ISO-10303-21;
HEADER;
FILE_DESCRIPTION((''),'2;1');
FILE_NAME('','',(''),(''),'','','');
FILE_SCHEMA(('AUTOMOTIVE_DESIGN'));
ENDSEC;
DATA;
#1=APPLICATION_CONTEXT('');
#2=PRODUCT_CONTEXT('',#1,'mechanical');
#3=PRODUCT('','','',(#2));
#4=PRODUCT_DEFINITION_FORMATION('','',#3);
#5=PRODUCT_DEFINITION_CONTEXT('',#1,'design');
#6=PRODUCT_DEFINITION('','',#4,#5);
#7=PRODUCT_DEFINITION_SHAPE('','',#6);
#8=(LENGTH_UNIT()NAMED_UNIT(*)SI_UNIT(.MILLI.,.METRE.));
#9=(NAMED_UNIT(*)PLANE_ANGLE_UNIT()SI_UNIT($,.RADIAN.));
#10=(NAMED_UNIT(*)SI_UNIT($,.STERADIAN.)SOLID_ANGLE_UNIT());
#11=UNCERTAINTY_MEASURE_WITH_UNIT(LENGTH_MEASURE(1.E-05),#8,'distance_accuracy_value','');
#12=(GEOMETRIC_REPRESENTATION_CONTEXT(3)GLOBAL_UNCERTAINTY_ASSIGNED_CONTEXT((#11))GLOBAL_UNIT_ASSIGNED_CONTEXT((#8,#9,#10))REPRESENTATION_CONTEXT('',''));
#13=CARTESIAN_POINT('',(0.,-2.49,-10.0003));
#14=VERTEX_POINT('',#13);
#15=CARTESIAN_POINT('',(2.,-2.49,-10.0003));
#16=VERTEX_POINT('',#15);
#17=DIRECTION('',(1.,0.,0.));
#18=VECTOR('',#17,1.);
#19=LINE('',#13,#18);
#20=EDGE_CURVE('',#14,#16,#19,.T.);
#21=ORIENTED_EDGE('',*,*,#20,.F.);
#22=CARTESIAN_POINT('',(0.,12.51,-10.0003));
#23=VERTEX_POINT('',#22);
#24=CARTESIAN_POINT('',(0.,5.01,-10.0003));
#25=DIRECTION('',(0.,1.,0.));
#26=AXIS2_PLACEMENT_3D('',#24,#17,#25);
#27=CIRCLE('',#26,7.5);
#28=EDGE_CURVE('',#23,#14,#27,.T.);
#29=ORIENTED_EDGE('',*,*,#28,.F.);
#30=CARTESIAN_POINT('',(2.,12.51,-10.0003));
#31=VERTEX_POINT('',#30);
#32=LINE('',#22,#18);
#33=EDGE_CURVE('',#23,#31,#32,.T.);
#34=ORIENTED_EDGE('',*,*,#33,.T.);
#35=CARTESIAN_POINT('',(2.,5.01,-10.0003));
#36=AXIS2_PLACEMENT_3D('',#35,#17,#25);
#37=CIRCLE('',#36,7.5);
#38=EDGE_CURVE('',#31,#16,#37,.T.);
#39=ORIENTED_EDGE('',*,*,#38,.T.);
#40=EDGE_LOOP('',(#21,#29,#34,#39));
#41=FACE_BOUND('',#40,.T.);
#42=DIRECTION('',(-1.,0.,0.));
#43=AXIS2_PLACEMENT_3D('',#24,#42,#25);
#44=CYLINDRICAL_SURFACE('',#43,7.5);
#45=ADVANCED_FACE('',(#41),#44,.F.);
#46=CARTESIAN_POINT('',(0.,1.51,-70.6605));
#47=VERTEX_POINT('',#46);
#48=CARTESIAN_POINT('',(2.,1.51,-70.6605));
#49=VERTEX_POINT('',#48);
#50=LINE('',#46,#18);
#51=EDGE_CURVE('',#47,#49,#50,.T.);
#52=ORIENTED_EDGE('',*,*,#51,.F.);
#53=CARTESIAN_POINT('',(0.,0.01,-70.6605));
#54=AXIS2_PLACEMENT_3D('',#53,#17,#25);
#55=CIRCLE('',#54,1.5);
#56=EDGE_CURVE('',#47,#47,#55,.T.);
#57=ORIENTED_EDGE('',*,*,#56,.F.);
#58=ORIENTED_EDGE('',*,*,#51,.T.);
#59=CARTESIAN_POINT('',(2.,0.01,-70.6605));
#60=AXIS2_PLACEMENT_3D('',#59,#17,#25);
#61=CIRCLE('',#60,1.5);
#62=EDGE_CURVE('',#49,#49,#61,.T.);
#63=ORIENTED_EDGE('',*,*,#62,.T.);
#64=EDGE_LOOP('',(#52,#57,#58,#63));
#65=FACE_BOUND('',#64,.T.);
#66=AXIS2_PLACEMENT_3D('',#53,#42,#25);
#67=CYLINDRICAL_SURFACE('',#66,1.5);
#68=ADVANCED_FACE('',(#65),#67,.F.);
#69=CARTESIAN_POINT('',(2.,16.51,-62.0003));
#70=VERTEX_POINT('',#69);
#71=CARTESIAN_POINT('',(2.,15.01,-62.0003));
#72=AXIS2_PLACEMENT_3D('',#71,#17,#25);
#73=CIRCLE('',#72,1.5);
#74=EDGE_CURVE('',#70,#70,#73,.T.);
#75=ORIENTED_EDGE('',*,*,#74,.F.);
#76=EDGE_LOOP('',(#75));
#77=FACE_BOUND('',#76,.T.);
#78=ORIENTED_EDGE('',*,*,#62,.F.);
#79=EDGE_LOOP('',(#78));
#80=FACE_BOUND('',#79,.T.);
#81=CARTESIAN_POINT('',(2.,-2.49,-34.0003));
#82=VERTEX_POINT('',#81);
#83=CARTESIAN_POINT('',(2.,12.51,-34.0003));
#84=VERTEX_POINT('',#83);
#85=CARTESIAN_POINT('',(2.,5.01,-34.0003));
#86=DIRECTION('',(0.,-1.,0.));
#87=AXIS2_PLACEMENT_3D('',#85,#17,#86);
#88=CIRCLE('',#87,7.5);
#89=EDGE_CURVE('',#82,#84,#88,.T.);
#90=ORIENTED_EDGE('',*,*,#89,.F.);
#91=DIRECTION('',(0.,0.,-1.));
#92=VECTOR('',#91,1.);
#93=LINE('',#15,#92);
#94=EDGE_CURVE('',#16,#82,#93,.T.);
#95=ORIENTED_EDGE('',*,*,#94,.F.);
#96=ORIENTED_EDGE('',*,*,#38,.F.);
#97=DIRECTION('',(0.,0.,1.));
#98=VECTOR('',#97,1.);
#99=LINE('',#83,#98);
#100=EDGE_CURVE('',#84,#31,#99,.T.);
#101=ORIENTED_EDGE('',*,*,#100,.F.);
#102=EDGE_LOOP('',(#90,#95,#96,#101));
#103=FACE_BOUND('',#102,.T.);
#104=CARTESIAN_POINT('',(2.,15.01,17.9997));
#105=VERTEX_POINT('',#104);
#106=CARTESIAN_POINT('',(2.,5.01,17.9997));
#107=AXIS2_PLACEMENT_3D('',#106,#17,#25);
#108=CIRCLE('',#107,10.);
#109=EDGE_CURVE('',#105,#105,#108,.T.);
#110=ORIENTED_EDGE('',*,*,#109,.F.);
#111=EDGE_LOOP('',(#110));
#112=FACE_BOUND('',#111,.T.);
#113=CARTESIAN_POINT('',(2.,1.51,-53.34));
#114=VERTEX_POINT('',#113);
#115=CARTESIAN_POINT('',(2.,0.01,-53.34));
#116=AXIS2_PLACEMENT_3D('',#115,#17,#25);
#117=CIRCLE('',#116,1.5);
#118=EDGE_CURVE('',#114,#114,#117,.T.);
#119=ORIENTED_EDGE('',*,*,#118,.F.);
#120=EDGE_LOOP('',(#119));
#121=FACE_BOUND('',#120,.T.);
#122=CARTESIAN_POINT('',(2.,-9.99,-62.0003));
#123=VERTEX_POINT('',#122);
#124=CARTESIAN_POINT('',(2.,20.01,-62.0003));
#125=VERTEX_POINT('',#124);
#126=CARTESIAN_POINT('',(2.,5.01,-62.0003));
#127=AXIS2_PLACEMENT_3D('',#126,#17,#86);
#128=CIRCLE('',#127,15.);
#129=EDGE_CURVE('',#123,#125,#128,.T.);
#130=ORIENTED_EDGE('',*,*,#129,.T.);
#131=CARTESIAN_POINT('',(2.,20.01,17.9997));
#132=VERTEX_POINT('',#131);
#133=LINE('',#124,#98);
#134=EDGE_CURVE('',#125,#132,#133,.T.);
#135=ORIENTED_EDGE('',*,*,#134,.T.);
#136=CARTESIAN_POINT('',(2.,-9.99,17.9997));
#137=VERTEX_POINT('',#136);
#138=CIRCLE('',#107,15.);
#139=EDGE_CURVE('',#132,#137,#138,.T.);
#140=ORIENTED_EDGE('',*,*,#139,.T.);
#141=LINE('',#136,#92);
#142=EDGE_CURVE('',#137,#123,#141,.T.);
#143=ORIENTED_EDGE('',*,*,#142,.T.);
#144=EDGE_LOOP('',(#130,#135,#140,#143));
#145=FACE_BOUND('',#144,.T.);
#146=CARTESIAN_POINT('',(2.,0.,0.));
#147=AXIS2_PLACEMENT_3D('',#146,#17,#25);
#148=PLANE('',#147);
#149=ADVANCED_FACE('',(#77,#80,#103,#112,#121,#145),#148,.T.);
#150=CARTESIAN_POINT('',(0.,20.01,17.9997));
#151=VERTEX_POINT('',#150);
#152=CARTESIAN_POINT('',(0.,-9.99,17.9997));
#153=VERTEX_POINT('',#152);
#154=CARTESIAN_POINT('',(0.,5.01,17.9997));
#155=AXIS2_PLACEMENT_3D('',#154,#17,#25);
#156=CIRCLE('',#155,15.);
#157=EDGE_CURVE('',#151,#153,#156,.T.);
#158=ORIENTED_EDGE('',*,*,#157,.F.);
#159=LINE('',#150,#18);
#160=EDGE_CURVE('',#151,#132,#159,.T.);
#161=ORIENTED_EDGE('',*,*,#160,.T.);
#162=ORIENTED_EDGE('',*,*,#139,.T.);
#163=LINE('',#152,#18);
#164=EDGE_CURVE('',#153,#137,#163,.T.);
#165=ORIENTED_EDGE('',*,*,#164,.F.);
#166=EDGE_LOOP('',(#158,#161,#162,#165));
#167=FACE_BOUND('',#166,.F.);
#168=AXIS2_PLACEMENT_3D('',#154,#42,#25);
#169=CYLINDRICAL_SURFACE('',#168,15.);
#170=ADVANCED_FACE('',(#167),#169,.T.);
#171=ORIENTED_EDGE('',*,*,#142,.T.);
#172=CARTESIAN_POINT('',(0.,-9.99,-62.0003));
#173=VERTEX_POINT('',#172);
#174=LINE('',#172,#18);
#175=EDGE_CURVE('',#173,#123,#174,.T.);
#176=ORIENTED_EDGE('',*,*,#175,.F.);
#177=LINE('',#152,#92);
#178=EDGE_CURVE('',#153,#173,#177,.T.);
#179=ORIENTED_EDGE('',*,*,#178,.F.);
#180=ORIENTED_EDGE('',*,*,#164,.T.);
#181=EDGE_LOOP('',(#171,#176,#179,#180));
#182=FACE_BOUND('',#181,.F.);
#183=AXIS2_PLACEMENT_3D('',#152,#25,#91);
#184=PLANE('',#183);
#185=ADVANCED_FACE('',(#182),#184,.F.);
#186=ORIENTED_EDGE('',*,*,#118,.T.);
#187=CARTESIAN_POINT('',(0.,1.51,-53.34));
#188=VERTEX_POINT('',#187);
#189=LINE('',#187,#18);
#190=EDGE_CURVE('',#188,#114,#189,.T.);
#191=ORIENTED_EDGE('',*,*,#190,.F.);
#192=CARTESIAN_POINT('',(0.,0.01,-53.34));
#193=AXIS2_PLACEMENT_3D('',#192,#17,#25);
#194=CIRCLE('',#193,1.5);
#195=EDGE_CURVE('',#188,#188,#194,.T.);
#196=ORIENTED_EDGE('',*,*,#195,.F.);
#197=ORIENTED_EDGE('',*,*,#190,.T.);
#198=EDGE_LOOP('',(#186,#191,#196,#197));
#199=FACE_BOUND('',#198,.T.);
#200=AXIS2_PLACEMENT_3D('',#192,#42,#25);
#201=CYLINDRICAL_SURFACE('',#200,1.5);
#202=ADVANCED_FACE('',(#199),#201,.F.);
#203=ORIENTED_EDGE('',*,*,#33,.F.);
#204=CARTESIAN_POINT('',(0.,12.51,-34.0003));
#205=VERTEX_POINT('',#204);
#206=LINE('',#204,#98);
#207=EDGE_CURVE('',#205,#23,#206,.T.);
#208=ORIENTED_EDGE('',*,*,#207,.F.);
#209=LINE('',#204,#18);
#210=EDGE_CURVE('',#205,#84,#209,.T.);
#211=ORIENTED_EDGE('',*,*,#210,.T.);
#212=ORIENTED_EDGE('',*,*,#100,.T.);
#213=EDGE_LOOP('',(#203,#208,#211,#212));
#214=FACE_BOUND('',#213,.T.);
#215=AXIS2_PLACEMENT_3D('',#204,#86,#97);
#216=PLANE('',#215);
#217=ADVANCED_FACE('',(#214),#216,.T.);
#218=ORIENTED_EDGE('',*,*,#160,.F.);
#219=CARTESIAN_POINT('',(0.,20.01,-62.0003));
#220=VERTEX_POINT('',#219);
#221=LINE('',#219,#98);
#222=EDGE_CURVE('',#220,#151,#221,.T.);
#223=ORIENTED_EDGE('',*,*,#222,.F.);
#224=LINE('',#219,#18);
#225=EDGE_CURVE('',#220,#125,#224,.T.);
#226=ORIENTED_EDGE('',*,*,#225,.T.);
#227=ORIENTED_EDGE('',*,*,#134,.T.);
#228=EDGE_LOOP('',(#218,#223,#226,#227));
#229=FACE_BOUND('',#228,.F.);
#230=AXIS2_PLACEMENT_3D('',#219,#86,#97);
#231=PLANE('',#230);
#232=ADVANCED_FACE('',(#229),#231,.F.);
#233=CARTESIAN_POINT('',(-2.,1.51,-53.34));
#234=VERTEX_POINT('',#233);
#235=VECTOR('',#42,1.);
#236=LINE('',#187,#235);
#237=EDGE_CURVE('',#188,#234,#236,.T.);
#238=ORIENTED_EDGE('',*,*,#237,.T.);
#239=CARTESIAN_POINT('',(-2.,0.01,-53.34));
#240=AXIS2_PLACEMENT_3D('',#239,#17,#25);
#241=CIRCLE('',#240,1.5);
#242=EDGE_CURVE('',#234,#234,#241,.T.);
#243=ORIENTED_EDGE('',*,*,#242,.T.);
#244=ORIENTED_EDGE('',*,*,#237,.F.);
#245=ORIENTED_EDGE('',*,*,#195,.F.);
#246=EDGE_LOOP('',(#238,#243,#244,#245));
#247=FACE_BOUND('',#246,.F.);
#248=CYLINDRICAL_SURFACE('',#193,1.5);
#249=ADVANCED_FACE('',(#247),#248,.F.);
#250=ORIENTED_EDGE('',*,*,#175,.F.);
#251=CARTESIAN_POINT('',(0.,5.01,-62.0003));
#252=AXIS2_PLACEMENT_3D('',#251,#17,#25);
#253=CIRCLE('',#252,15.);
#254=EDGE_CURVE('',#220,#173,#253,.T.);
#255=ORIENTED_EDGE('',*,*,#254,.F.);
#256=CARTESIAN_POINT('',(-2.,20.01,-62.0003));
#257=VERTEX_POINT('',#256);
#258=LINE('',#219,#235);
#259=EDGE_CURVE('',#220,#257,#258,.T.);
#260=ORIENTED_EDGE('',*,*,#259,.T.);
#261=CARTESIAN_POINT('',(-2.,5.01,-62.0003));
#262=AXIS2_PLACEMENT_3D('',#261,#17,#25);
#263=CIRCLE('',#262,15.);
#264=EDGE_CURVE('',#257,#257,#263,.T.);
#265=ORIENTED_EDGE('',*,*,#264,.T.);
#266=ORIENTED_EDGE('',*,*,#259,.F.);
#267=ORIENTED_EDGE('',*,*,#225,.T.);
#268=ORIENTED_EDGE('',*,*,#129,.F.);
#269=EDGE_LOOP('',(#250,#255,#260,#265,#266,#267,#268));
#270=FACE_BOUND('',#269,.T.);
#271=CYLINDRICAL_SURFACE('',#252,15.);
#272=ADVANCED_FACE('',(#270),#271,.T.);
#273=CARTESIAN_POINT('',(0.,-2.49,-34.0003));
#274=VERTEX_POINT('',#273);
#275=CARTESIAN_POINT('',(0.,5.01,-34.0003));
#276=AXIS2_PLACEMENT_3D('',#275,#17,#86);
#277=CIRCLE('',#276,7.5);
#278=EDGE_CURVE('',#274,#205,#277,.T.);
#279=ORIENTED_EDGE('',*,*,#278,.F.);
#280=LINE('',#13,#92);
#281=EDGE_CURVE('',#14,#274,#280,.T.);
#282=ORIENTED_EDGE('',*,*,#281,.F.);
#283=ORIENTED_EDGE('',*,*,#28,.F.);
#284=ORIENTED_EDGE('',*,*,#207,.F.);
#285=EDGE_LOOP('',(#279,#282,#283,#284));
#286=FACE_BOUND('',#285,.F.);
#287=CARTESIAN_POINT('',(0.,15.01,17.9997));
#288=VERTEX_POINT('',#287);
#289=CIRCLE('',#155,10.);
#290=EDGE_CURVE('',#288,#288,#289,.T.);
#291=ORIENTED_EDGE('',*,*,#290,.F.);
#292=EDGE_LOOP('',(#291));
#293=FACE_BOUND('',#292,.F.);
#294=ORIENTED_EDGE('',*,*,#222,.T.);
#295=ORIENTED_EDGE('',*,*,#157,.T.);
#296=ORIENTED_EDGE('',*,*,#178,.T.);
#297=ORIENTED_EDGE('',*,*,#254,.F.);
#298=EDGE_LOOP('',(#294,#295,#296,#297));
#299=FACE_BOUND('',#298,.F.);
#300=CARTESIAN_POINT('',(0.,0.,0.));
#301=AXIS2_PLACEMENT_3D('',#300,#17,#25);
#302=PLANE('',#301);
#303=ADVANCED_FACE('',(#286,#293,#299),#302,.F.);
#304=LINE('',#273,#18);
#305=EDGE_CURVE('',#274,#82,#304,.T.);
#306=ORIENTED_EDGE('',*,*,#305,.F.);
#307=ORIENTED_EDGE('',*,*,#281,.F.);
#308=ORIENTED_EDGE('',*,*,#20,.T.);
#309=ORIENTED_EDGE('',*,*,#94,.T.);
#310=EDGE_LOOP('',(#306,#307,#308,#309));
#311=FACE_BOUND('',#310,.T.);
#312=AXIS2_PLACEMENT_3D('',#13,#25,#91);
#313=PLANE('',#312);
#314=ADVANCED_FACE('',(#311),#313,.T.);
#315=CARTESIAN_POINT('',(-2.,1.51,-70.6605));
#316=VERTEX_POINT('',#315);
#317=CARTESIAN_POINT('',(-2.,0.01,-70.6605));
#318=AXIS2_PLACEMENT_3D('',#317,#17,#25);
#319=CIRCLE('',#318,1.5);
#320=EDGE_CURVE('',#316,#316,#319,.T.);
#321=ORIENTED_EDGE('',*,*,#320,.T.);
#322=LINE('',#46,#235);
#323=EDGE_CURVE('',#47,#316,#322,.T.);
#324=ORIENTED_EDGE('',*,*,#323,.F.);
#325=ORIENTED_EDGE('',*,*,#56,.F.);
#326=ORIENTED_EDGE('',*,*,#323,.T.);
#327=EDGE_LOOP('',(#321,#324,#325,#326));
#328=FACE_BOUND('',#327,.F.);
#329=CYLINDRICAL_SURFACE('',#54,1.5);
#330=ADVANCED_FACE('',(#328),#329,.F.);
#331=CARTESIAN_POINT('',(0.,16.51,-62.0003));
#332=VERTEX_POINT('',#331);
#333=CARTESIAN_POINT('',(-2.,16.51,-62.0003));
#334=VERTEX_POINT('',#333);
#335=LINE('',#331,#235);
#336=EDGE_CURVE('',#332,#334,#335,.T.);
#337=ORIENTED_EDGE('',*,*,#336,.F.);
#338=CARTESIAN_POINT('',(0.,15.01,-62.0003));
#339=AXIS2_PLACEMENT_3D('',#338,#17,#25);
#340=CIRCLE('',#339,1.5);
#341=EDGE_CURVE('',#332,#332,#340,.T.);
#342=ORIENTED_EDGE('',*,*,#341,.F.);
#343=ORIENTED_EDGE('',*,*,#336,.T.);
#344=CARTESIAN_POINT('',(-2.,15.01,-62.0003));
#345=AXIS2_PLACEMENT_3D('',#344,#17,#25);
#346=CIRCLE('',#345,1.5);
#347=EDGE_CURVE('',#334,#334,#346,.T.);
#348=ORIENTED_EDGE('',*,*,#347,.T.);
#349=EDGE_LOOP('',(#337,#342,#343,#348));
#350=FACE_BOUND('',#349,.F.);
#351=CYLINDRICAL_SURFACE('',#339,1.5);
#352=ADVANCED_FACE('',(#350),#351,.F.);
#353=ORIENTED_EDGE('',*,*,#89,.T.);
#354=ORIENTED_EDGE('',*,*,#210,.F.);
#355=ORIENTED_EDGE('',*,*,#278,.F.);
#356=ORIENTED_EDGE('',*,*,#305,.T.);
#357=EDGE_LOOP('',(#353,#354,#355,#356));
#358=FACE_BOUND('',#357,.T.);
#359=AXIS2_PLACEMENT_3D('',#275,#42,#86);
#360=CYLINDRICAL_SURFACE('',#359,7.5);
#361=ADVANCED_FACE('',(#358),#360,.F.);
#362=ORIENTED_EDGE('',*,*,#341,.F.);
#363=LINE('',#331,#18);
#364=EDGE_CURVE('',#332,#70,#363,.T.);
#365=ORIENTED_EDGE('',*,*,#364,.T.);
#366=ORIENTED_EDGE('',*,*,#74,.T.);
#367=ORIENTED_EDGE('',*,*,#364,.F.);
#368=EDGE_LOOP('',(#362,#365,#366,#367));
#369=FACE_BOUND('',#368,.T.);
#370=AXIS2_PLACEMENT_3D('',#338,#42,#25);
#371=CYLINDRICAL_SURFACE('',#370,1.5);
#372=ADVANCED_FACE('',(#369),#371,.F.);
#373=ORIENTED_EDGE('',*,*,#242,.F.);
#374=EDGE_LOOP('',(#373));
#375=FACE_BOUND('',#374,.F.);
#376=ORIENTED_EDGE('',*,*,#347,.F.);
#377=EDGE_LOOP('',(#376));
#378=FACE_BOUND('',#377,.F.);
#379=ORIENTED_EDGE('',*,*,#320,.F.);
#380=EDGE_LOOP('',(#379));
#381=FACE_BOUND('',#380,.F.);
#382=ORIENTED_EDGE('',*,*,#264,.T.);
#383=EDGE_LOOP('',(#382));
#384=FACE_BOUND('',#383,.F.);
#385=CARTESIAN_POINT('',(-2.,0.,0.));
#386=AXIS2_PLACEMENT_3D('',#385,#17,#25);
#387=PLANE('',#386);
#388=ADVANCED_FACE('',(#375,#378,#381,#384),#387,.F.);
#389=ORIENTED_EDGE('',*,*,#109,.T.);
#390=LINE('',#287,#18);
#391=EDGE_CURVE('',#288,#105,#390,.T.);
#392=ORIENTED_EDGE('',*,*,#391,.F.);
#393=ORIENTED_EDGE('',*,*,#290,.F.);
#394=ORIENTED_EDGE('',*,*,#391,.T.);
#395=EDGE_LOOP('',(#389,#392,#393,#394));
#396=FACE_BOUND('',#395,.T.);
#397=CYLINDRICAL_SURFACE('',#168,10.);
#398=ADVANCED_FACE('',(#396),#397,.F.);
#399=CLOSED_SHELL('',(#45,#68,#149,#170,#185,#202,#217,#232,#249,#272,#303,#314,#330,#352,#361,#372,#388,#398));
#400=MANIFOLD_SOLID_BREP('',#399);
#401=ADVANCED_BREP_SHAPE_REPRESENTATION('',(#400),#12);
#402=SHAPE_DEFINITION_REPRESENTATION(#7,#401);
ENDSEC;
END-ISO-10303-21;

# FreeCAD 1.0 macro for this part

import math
import FreeCAD as App
import Part
import Sketcher

V = App.Vector
Q = App.Units.Quantity

doc = App.newDocument("Part")
body = doc.addObject("PartDesign::Body", "Body")

sketch1 = body.newObject("Sketcher::SketchObject", "Sketch")
sketch1.AttachmentSupport = (doc.getObject("YZ_Plane"), [""])
sketch1.MapMode = "FlatFace"
sketch1.addGeometry(Part.ArcOfCircle(Part.Circle(V(5.01, 17.9997, 0), V(0, 0, 1), 15), math.radians(0), math.radians(180)), False)
sketch1.addGeometry(Part.LineSegment(V(-9.99, 17.9997, 0), V(-9.99, -62.0003, 0)), False)
sketch1.addGeometry(Part.ArcOfCircle(Part.Circle(V(5.01, -62.0003, 0), V(0, 0, 1), 15), math.radians(180), math.radians(360)), False)
sketch1.addGeometry(Part.LineSegment(V(20.01, -62.0003, 0), V(20.01, 17.9997, 0)), False)
sketch1.addGeometry(Part.LineSegment(V(-2.49, -34.0003, 0), V(-2.49, -10.0003, 0)), False)
sketch1.addGeometry(Part.ArcOfCircle(Part.Circle(V(5.01, -10.0003, 0), V(0, 0, 1), 7.5), math.radians(0), math.radians(180)), False)
sketch1.addGeometry(Part.LineSegment(V(12.51, -10.0003, 0), V(12.51, -34.0003, 0)), False)
sketch1.addGeometry(Part.ArcOfCircle(Part.Circle(V(5.01, -34.0003, 0), V(0, 0, 1), 7.5), math.radians(180), math.radians(360)), False)
sketch1.addGeometry(Part.Circle(V(5.01, 17.9997, 0), V(0, 0, 1), 10), False)
sketch1.addGeometry(Part.Circle(V(15.01, -62.0003, 0), V(0, 0, 1), 1.5), False)
sketch1.addGeometry(Part.Circle(V(0.01, -70.6605, 0), V(0, 0, 1), 1.5), False)
sketch1.addGeometry(Part.Circle(V(0.01, -53.34, 0), V(0, 0, 1), 1.5), False)
sketch1.addConstraint(Sketcher.Constraint("Tangent", 0, 2, 1, 1))
sketch1.addConstraint(Sketcher.Constraint("Tangent", 1, 2, 2, 1))
sketch1.addConstraint(Sketcher.Constraint("Tangent", 2, 2, 3, 1))
sketch1.addConstraint(Sketcher.Constraint("Tangent", 3, 2, 0, 1))
sketch1.addConstraint(Sketcher.Constraint("Tangent", 4, 2, 5, 2))
sketch1.addConstraint(Sketcher.Constraint("Tangent", 5, 1, 6, 1))
sketch1.addConstraint(Sketcher.Constraint("Tangent", 6, 2, 7, 2))
sketch1.addConstraint(Sketcher.Constraint("Tangent", 7, 1, 4, 1))
sketch1.addConstraint(Sketcher.Constraint("Vertical", 1))
sketch1.addConstraint(Sketcher.Constraint("Vertical", 3))
sketch1.addConstraint(Sketcher.Constraint("Vertical", 4))
sketch1.addConstraint(Sketcher.Constraint("Vertical", 6))
sketch1.addConstraint(Sketcher.Constraint("Coincident", 8, 3, 0, 3))
sketch1.addConstraint(Sketcher.Constraint("Equal", 9, 10))
sketch1.addConstraint(Sketcher.Constraint("Equal", 10, 11))
sketch1.addConstraint(Sketcher.Constraint("Horizontal", 2, 3, 9, 3))
sketch1.addConstraint(Sketcher.Constraint("Vertical", 2, 3, 5, 3))
sketch1.addConstraint(Sketcher.Constraint("Vertical", 10, 3, 11, 3))
sketch1.addConstraint(Sketcher.Constraint("Diameter", 8, Q("20 mm")))
sketch1.addConstraint(Sketcher.Constraint("Diameter", 9, Q("3 mm")))
sketch1.addConstraint(Sketcher.Constraint("Radius", 0, Q("15 mm")))
sketch1.addConstraint(Sketcher.Constraint("Radius", 5, Q("7.5 mm")))
sketch1.addConstraint(Sketcher.Constraint("DistanceY", 1, 2, 1, 1, Q("80 mm")))
sketch1.addConstraint(Sketcher.Constraint("DistanceY", 4, 1, 4, 2, Q("24 mm")))
sketch1.addConstraint(Sketcher.Constraint("DistanceX", 10, 3, 9, 3, Q("15 mm")))
sketch1.addConstraint(Sketcher.Constraint("DistanceX", 10, 3, 2, 2, Q("20 mm")))
sketch1.addConstraint(Sketcher.Constraint("DistanceY", 5, 3, 0, 3, Q("28 mm")))
sketch1.addConstraint(Sketcher.Constraint("DistanceX", -1, 1, 0, 3, Q("5.01 mm")))
sketch1.addConstraint(Sketcher.Constraint("DistanceY", 11, 3, -1, 1, Q("53.34 mm")))
sketch1.addConstraint(Sketcher.Constraint("DistanceY", -1, 1, 0, 3, Q("17.9997 mm")))
sketch1.addConstraint(Sketcher.Constraint("DistanceY", 10, 3, -1, 1, Q("70.6605 mm")))
pad1 = body.newObject("PartDesign::Pad", "Pad")
pad1.Profile = sketch1
pad1.Length = 2

sketch2 = body.newObject("Sketcher::SketchObject", "Sketch001")
sketch2.AttachmentSupport = (doc.getObject("YZ_Plane"), [""])
sketch2.MapMode = "FlatFace"
sketch2.addGeometry(Part.Circle(V(5.01, -62.0003, 0), V(0, 0, 1), 15), False)
sketch2.addGeometry(Part.Circle(V(0.01, -70.6605, 0), V(0, 0, 1), 1.5), False)
sketch2.addGeometry(Part.Circle(V(0.01, -53.34, 0), V(0, 0, 1), 1.5), False)
sketch2.addGeometry(Part.Circle(V(15.01, -62.0003, 0), V(0, 0, 1), 1.5), False)
sketch2.addConstraint(Sketcher.Constraint("Equal", 1, 2))
sketch2.addConstraint(Sketcher.Constraint("Equal", 2, 3))
sketch2.addConstraint(Sketcher.Constraint("Horizontal", 0, 3, 3, 3))
sketch2.addConstraint(Sketcher.Constraint("Vertical", 1, 3, 2, 3))
sketch2.addConstraint(Sketcher.Constraint("Diameter", 0, Q("30 mm")))
sketch2.addConstraint(Sketcher.Constraint("Diameter", 1, Q("3 mm")))
sketch2.addConstraint(Sketcher.Constraint("DistanceX", 1, 3, 3, 3, Q("15 mm")))
sketch2.addConstraint(Sketcher.Constraint("DistanceX", 1, 3, 0, 3, Q("5 mm")))
sketch2.addConstraint(Sketcher.Constraint("DistanceX", -1, 1, 0, 3, Q("5.01 mm")))
sketch2.addConstraint(Sketcher.Constraint("DistanceY", 2, 3, -1, 1, Q("53.34 mm")))
sketch2.addConstraint(Sketcher.Constraint("DistanceY", 0, 3, -1, 1, Q("62.0003 mm")))
sketch2.addConstraint(Sketcher.Constraint("DistanceY", 1, 3, -1, 1, Q("70.6605 mm")))
pad2 = body.newObject("PartDesign::Pad", "Pad001")
pad2.Profile = sketch2
pad2.Length = 2
pad2.Reversed = True

doc.recompute()
